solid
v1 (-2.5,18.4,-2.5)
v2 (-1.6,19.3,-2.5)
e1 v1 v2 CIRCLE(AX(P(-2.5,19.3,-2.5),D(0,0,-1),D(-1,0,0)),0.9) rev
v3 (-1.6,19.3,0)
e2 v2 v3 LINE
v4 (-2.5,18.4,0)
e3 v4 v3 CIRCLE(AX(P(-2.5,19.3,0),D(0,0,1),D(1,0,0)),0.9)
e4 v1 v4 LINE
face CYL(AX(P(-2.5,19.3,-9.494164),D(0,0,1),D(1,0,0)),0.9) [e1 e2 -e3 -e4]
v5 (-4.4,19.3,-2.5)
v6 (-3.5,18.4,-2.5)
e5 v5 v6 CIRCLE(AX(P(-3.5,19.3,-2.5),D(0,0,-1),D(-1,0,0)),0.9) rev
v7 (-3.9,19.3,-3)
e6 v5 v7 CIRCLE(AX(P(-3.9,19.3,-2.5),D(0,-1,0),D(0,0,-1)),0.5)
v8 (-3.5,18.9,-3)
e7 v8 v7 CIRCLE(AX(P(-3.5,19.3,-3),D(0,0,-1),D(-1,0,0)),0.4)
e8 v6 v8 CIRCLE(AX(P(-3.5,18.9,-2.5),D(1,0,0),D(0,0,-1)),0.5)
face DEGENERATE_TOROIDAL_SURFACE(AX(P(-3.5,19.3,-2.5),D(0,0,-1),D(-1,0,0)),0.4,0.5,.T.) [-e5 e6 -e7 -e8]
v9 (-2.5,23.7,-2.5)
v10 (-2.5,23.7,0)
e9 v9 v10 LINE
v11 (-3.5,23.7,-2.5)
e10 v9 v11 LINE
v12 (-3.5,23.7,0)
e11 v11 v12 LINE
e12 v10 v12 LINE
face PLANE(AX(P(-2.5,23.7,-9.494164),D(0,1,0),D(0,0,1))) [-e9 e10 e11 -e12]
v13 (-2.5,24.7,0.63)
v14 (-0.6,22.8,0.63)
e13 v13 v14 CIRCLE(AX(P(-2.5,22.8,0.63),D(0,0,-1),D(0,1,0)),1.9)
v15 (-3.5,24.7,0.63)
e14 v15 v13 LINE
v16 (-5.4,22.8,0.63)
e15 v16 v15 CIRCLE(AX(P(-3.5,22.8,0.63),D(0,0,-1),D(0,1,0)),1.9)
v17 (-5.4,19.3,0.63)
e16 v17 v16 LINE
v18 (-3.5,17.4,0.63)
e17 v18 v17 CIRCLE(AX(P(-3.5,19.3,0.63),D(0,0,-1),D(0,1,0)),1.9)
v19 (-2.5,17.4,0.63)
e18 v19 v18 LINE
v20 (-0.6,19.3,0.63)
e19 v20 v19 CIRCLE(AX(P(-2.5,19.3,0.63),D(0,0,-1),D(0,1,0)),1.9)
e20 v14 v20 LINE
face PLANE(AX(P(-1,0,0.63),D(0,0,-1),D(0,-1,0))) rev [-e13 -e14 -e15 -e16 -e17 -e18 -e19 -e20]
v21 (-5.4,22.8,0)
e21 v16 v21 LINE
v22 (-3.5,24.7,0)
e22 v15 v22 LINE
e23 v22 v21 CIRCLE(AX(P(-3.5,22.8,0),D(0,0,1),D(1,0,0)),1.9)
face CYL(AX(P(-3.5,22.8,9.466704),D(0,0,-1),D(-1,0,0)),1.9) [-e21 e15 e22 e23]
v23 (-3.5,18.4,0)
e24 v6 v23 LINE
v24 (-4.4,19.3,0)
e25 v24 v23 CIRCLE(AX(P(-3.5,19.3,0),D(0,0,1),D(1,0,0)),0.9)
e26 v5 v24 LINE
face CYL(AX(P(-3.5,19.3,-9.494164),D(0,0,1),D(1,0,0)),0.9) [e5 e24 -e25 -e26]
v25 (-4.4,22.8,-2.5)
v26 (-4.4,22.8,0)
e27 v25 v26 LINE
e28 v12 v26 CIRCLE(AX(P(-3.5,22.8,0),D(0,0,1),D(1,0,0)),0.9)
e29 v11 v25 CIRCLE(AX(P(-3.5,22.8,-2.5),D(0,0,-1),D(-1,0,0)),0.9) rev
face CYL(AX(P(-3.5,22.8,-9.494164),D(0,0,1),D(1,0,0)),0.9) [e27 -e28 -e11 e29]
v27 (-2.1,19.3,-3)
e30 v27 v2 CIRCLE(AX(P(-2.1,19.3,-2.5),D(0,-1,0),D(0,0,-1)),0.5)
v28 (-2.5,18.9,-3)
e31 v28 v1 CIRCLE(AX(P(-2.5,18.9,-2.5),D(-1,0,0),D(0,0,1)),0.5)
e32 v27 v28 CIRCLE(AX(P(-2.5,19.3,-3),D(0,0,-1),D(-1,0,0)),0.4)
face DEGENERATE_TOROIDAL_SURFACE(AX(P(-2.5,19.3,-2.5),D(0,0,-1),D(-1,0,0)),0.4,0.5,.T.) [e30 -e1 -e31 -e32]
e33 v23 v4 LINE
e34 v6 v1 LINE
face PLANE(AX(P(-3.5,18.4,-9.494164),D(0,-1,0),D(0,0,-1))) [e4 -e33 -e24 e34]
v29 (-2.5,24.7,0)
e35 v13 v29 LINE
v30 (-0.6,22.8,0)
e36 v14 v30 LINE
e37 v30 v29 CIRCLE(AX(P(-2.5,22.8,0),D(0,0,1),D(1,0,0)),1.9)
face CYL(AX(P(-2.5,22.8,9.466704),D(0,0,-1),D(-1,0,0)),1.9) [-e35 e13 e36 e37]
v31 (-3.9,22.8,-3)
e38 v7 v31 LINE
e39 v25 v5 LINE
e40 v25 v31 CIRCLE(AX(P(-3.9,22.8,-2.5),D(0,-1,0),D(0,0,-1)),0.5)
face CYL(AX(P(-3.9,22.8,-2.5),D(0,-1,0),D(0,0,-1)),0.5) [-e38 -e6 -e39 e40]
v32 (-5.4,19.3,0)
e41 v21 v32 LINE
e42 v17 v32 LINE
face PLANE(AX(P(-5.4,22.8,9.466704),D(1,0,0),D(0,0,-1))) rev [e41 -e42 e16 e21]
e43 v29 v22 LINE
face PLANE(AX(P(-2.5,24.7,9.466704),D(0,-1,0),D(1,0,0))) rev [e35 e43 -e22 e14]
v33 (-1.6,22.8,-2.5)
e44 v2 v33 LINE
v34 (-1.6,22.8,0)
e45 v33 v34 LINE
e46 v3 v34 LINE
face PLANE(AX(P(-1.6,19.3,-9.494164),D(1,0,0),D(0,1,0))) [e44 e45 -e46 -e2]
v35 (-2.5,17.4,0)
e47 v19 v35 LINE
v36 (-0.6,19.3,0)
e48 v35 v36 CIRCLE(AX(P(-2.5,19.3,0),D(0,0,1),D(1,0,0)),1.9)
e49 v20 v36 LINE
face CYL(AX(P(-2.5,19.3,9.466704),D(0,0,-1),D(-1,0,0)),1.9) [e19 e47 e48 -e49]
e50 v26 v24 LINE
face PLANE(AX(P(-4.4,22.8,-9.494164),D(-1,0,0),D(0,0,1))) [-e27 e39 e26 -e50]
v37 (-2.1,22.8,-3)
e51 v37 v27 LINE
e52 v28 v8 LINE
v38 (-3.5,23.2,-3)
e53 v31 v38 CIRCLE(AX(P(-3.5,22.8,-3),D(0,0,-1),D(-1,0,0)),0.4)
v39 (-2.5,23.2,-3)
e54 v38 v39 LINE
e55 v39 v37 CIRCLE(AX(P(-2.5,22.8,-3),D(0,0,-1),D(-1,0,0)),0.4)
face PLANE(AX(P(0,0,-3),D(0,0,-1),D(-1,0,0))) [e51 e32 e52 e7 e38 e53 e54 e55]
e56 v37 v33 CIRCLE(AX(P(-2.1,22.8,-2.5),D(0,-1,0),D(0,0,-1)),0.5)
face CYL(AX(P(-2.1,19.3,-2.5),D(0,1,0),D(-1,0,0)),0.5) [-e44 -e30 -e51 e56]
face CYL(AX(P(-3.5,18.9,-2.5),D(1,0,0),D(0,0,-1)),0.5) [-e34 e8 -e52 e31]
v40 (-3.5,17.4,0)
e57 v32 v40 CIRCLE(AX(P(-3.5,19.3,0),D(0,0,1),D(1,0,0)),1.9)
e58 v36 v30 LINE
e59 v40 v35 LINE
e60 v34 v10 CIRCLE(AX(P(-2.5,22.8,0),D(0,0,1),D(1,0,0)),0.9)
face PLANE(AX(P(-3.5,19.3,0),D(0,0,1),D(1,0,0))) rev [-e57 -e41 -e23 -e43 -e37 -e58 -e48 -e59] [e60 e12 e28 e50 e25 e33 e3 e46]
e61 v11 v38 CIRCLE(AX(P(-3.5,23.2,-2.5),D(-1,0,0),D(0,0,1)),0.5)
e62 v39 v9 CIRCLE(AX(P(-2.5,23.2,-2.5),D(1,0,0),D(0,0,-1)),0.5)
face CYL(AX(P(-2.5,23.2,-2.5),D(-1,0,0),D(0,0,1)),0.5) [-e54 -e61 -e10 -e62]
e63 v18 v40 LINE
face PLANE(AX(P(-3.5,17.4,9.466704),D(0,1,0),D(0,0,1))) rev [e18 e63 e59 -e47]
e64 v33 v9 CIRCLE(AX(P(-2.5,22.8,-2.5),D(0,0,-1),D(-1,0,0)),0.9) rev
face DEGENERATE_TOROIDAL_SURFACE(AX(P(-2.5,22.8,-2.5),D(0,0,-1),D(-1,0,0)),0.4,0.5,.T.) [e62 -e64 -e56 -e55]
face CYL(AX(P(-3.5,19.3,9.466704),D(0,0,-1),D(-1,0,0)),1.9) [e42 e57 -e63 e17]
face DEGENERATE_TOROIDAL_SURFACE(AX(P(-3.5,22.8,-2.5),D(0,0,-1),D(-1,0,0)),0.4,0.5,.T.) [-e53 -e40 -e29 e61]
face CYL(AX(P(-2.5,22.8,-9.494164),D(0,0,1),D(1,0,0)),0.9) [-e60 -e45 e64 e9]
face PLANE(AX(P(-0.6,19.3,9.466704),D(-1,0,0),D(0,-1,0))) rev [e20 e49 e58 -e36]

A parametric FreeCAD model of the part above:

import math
import FreeCAD as App
import Part
import Sketcher
from FreeCAD import Vector
Q = App.Units.Quantity


def edges_at(feature, points):
    """Names of the edges that pass closest to the given points."""
    edges = feature.Shape.Edges
    near = lambda p: min(range(len(edges)), key=lambda i: edges[i].distToShape(Part.Vertex(*p))[0])
    return sorted({f"Edge{near(p) + 1}" for p in points})

doc = App.newDocument("Part")
body = doc.addObject("PartDesign::Body", "Body")

sketch1 = body.newObject("Sketcher::SketchObject", "Sketch")
sketch1.AttachmentSupport = (doc.getObject("XY_Plane"), [""])
sketch1.MapMode = "FlatFace"
sketch1.addGeometry(Part.LineSegment(Vector(-3.5, 18.4, 0), Vector(-2.5, 18.4, 0)), False)
sketch1.addGeometry(Part.ArcOfCircle(Part.Circle(Vector(-2.5, 19.3, 0), Vector(0, 0, 1), 0.9), math.radians(-90), math.radians(0)), False)
sketch1.addGeometry(Part.LineSegment(Vector(-1.6, 19.3, 0), Vector(-1.6, 22.8, 0)), False)
sketch1.addGeometry(Part.ArcOfCircle(Part.Circle(Vector(-2.5, 22.8, 0), Vector(0, 0, 1), 0.9), math.radians(0), math.radians(90)), False)
sketch1.addGeometry(Part.LineSegment(Vector(-2.5, 23.7, 0), Vector(-3.5, 23.7, 0)), False)
sketch1.addGeometry(Part.ArcOfCircle(Part.Circle(Vector(-3.5, 22.8, 0), Vector(0, 0, 1), 0.9), math.radians(90), math.radians(180)), False)
sketch1.addGeometry(Part.LineSegment(Vector(-4.4, 22.8, 0), Vector(-4.4, 19.3, 0)), False)
sketch1.addGeometry(Part.ArcOfCircle(Part.Circle(Vector(-3.5, 19.3, 0), Vector(0, 0, 1), 0.9), math.radians(180), math.radians(270)), False)
sketch1.addConstraint(Sketcher.Constraint("Tangent", 0, 2, 1, 1))
sketch1.addConstraint(Sketcher.Constraint("Tangent", 1, 2, 2, 1))
sketch1.addConstraint(Sketcher.Constraint("Tangent", 2, 2, 3, 1))
sketch1.addConstraint(Sketcher.Constraint("Tangent", 3, 2, 4, 1))
sketch1.addConstraint(Sketcher.Constraint("Tangent", 4, 2, 5, 1))
sketch1.addConstraint(Sketcher.Constraint("Tangent", 5, 2, 6, 1))
sketch1.addConstraint(Sketcher.Constraint("Tangent", 6, 2, 7, 1))
sketch1.addConstraint(Sketcher.Constraint("Tangent", 7, 2, 0, 1))
sketch1.addConstraint(Sketcher.Constraint("Horizontal", 0))
sketch1.addConstraint(Sketcher.Constraint("Vertical", 2))
sketch1.addConstraint(Sketcher.Constraint("Horizontal", 4))
sketch1.addConstraint(Sketcher.Constraint("Vertical", 6))
sketch1.addConstraint(Sketcher.Constraint("Equal", 1, 3))
sketch1.addConstraint(Sketcher.Constraint("Equal", 3, 5))
sketch1.addConstraint(Sketcher.Constraint("Equal", 5, 7))
sketch1.addConstraint(Sketcher.Constraint("Radius", 1, Q("0.9 mm")))
sketch1.addConstraint(Sketcher.Constraint("DistanceX", 0, 1, 0, 2, Q("1 mm")))
sketch1.addConstraint(Sketcher.Constraint("DistanceY", 2, 1, 2, 2, Q("3.5 mm")))
sketch1.addConstraint(Sketcher.Constraint("DistanceX", 1, 3, -1, 1, Q("2.5 mm")))
sketch1.addConstraint(Sketcher.Constraint("DistanceY", -1, 1, 1, 3, Q("19.3 mm")))
pad1 = body.newObject("PartDesign::Pad", "Pad")
pad1.Profile = sketch1
pad1.Length = 3
pad1.Reversed = True

sketch2 = body.newObject("Sketcher::SketchObject", "Sketch001")
sketch2.AttachmentSupport = (doc.getObject("XY_Plane"), [""])
sketch2.MapMode = "FlatFace"
sketch2.addGeometry(Part.LineSegment(Vector(-3.5, 17.4, 0), Vector(-2.5, 17.4, 0)), False)
sketch2.addGeometry(Part.ArcOfCircle(Part.Circle(Vector(-2.5, 19.3, 0), Vector(0, 0, 1), 1.9), math.radians(-90), math.radians(0)), False)
sketch2.addGeometry(Part.LineSegment(Vector(-0.6, 19.3, 0), Vector(-0.6, 22.8, 0)), False)
sketch2.addGeometry(Part.ArcOfCircle(Part.Circle(Vector(-2.5, 22.8, 0), Vector(0, 0, 1), 1.9), math.radians(0), math.radians(90)), False)
sketch2.addGeometry(Part.LineSegment(Vector(-2.5, 24.7, 0), Vector(-3.5, 24.7, 0)), False)
sketch2.addGeometry(Part.ArcOfCircle(Part.Circle(Vector(-3.5, 22.8, 0), Vector(0, 0, 1), 1.9), math.radians(90), math.radians(180)), False)
sketch2.addGeometry(Part.LineSegment(Vector(-5.4, 22.8, 0), Vector(-5.4, 19.3, 0)), False)
sketch2.addGeometry(Part.ArcOfCircle(Part.Circle(Vector(-3.5, 19.3, 0), Vector(0, 0, 1), 1.9), math.radians(-180), math.radians(-90)), False)
sketch2.addConstraint(Sketcher.Constraint("Tangent", 0, 2, 1, 1))
sketch2.addConstraint(Sketcher.Constraint("Tangent", 1, 2, 2, 1))
sketch2.addConstraint(Sketcher.Constraint("Tangent", 2, 2, 3, 1))
sketch2.addConstraint(Sketcher.Constraint("Tangent", 3, 2, 4, 1))
sketch2.addConstraint(Sketcher.Constraint("Tangent", 4, 2, 5, 1))
sketch2.addConstraint(Sketcher.Constraint("Tangent", 5, 2, 6, 1))
sketch2.addConstraint(Sketcher.Constraint("Tangent", 6, 2, 7, 1))
sketch2.addConstraint(Sketcher.Constraint("Tangent", 7, 2, 0, 1))
sketch2.addConstraint(Sketcher.Constraint("Horizontal", 0))
sketch2.addConstraint(Sketcher.Constraint("Vertical", 2))
sketch2.addConstraint(Sketcher.Constraint("Horizontal", 4))
sketch2.addConstraint(Sketcher.Constraint("Vertical", 6))
sketch2.addConstraint(Sketcher.Constraint("Equal", 1, 3))
sketch2.addConstraint(Sketcher.Constraint("Equal", 3, 5))
sketch2.addConstraint(Sketcher.Constraint("Equal", 5, 7))
sketch2.addConstraint(Sketcher.Constraint("Radius", 1, Q("1.9 mm")))
sketch2.addConstraint(Sketcher.Constraint("DistanceX", 0, 1, 0, 2, Q("1 mm")))
sketch2.addConstraint(Sketcher.Constraint("DistanceY", 2, 1, 2, 2, Q("3.5 mm")))
sketch2.addConstraint(Sketcher.Constraint("DistanceX", 1, 3, -1, 1, Q("2.5 mm")))
sketch2.addConstraint(Sketcher.Constraint("DistanceY", -1, 1, 1, 3, Q("19.3 mm")))
pad2 = body.newObject("PartDesign::Pad", "Pad001")
pad2.Profile = sketch2
pad2.Length = 0.63
doc.recompute()

fillet = body.newObject("PartDesign::Fillet", "Fillet")
fillet.Base = (pad2, edges_at(pad2, [
    (-3, 18.4, -3),
    (-1.864, 18.664, -3),
    (-1.6, 21.05, -3),
    (-1.864, 23.436, -3),
    (-3, 23.7, -3),
    (-4.136, 23.436, -3),
    (-4.4, 21.05, -3),
    (-4.136, 18.664, -3),
]))
fillet.Radius = 0.5

doc.recompute()
